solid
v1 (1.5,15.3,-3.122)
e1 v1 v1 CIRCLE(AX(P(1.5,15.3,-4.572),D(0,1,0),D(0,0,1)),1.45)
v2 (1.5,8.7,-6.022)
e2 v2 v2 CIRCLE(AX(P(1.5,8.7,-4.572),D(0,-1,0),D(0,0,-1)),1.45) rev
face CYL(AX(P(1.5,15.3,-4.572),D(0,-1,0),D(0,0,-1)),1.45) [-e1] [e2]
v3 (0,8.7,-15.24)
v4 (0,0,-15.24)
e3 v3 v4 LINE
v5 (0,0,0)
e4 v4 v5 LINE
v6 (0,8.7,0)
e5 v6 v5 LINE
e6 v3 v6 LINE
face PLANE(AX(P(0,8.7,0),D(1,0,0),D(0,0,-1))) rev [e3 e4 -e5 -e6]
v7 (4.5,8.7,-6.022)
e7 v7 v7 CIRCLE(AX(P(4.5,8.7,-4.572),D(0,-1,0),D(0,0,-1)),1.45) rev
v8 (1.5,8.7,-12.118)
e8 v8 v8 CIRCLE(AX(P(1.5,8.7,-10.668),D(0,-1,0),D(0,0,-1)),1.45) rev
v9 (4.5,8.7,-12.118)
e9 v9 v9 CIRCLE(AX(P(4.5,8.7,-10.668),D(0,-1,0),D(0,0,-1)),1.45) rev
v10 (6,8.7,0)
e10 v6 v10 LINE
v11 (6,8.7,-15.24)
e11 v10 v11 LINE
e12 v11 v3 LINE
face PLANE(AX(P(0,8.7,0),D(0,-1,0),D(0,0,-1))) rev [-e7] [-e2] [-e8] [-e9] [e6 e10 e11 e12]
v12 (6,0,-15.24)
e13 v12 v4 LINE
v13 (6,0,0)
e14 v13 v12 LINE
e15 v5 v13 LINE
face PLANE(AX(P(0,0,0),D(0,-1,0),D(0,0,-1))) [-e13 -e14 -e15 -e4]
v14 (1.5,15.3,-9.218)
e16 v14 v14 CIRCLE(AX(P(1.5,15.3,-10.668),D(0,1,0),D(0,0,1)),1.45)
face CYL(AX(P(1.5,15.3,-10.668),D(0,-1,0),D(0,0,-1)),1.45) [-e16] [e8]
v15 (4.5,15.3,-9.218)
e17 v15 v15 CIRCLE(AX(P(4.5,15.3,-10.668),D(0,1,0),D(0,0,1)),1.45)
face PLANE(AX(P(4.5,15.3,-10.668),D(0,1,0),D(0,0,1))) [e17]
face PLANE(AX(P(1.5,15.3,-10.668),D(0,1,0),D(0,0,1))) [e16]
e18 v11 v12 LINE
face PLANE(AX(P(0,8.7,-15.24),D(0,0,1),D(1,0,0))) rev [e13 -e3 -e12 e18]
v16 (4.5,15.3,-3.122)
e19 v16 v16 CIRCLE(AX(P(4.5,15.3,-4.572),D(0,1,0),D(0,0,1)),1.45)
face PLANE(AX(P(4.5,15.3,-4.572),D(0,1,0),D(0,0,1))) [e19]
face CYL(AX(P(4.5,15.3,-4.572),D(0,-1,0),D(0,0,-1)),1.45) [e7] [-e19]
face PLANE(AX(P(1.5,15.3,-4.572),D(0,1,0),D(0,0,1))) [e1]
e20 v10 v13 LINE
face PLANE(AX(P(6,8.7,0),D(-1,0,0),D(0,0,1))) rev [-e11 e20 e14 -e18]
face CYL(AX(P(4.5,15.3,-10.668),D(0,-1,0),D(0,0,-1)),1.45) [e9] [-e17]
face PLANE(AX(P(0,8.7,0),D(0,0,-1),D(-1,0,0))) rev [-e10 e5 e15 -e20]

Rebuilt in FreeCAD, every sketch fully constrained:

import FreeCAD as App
import Part
import Sketcher

V = App.Vector

doc = App.newDocument("Part")
body = doc.addObject("PartDesign::Body", "Body")

sketch1 = body.newObject("Sketcher::SketchObject", "Sketch")
sketch1.AttachmentSupport = (doc.getObject("XZ_Plane"), [""])
sketch1.MapMode = "FlatFace"
sketch1.addGeometry(Part.LineSegment(V(0, -15.24, 0), V(0, 0, 0)), False)
sketch1.addGeometry(Part.LineSegment(V(0, 0, 0), V(6, 0, 0)), False)
sketch1.addGeometry(Part.LineSegment(V(6, 0, 0), V(6, -15.24, 0)), False)
sketch1.addGeometry(Part.LineSegment(V(6, -15.24, 0), V(0, -15.24, 0)), False)
sketch1.addConstraint(Sketcher.Constraint("Coincident", 0, 2, 1, 1))
sketch1.addConstraint(Sketcher.Constraint("Coincident", 1, 2, 2, 1))
sketch1.addConstraint(Sketcher.Constraint("Coincident", 2, 2, 3, 1))
sketch1.addConstraint(Sketcher.Constraint("Coincident", 3, 2, 0, 1))
sketch1.addConstraint(Sketcher.Constraint("Vertical", 0))
sketch1.addConstraint(Sketcher.Constraint("Horizontal", 1))
sketch1.addConstraint(Sketcher.Constraint("Vertical", 2))
sketch1.addConstraint(Sketcher.Constraint("Horizontal", 3))
sketch1.addConstraint(Sketcher.Constraint("Coincident", 0, 2, -1, 1))
sketch1.addConstraint(Sketcher.Constraint("DistanceX", 1, 1, 1, 2, 6.0))
sketch1.addConstraint(Sketcher.Constraint("DistanceY", 0, 1, 0, 2, 15.24))
pad1 = body.newObject("PartDesign::Pad", "Pad")
pad1.Profile = sketch1
pad1.Length = 8.7
pad1.Reversed = True

sketch2 = body.newObject("Sketcher::SketchObject", "Sketch001")
sketch2.AttachmentSupport = (doc.getObject("XZ_Plane"), [""])
sketch2.MapMode = "FlatFace"
sketch2.AttachmentOffset = App.Placement(V(0, 0, -8.7), App.Rotation())
sketch2.addGeometry(Part.Circle(V(1.5, -10.668, 0), V(0, 0, 1), 1.45), False)
sketch2.addGeometry(Part.Circle(V(1.5, -4.572, 0), V(0, 0, 1), 1.45), False)
sketch2.addGeometry(Part.Circle(V(4.5, -4.572, 0), V(0, 0, 1), 1.45), False)
sketch2.addGeometry(Part.Circle(V(4.5, -10.668, 0), V(0, 0, 1), 1.45), False)
sketch2.addConstraint(Sketcher.Constraint("Equal", 0, 1))
sketch2.addConstraint(Sketcher.Constraint("Equal", 1, 2))
sketch2.addConstraint(Sketcher.Constraint("Equal", 2, 3))
sketch2.addConstraint(Sketcher.Constraint("Horizontal", 1, 3, 2, 3))
sketch2.addConstraint(Sketcher.Constraint("Horizontal", 0, 3, 3, 3))
sketch2.addConstraint(Sketcher.Constraint("Vertical", 0, 3, 1, 3))
sketch2.addConstraint(Sketcher.Constraint("Vertical", 2, 3, 3, 3))
sketch2.addConstraint(Sketcher.Constraint("Diameter", 0, 2.9))
sketch2.addConstraint(Sketcher.Constraint("DistanceX", 1, 3, 2, 3, 3.0))
sketch2.addConstraint(Sketcher.Constraint("DistanceX", -1, 1, 0, 3, 1.5))
sketch2.addConstraint(Sketcher.Constraint("DistanceY", 0, 3, -1, 1, 10.668))
sketch2.addConstraint(Sketcher.Constraint("DistanceY", 1, 3, -1, 1, 4.572))
pad2 = body.newObject("PartDesign::Pad", "Pad001")
pad2.Profile = sketch2
pad2.Length = 6.6
pad2.Reversed = True

doc.recompute()
